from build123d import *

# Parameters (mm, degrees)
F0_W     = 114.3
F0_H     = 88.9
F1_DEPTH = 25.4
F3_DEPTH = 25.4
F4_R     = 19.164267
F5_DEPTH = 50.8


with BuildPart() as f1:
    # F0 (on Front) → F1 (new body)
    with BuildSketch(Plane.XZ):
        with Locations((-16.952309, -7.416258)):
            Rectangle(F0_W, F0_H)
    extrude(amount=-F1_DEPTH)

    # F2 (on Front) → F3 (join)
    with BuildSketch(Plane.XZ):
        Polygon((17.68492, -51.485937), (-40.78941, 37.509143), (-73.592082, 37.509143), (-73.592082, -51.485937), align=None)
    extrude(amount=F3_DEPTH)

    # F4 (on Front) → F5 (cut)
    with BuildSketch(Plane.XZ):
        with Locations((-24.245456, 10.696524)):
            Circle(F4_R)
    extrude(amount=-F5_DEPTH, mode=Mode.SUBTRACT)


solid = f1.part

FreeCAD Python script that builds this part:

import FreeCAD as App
import Part
import Sketcher

V = App.Vector
Q = App.Units.Quantity

doc = App.newDocument("Part")
body = doc.addObject("PartDesign::Body", "Body")

sketch1 = body.newObject("Sketcher::SketchObject", "Sketch")
sketch1.AttachmentSupport = (doc.getObject("XZ_Plane"), [""])
sketch1.MapMode = "FlatFace"
sketch1.addGeometry([
    Part.LineSegment(V(-74, 37, 0), V(-74, -52, 0)),
    Part.LineSegment(V(-74, -52, 0), V(40, -52, 0)),
    Part.LineSegment(V(40, -52, 0), V(40, 37, 0)),
    Part.LineSegment(V(40, 37, 0), V(-74, 37, 0)),
], False)
sketch1.addConstraint([
    Sketcher.Constraint("Coincident", 0, 2, 1, 1),
    Sketcher.Constraint("Coincident", 1, 2, 2, 1),
    Sketcher.Constraint("Coincident", 2, 2, 3, 1),
    Sketcher.Constraint("Coincident", 3, 2, 0, 1),
    Sketcher.Constraint("Vertical", 0),
    Sketcher.Constraint("Horizontal", 1),
    Sketcher.Constraint("Vertical", 2),
    Sketcher.Constraint("Horizontal", 3),
    Sketcher.Constraint("DistanceX", 1, 1, 1, 2, Q("4.5 in")),
    Sketcher.Constraint("DistanceY", 0, 2, 0, 1, Q("3.5 in")),
    Sketcher.Constraint("DistanceX", 0, 2, -1, 1, Q("74.102309 mm")),
    Sketcher.Constraint("DistanceY", 0, 2, -1, 1, Q("51.866258 mm")),
])
pad1 = body.newObject("PartDesign::Pad", "Pad")
pad1.Profile = sketch1
pad1.Length = Q("1 in")
pad1.Reversed = True

sketch2 = body.newObject("Sketcher::SketchObject", "Sketch001")
sketch2.AttachmentSupport = (doc.getObject("XZ_Plane"), [""])
sketch2.MapMode = "FlatFace"
sketch2.addGeometry([
    Part.LineSegment(V(18, -51, 0), V(-41, 38, 0)),
    Part.LineSegment(V(-41, 38, 0), V(-74, 38, 0)),
    Part.LineSegment(V(-74, 38, 0), V(-74, -51, 0)),
    Part.LineSegment(V(-74, -51, 0), V(18, -51, 0)),
], False)
sketch2.addConstraint([
    Sketcher.Constraint("Coincident", 0, 2, 1, 1),
    Sketcher.Constraint("Coincident", 1, 2, 2, 1),
    Sketcher.Constraint("Coincident", 2, 2, 3, 1),
    Sketcher.Constraint("Coincident", 3, 2, 0, 1),
    Sketcher.Constraint("Horizontal", 1),
    Sketcher.Constraint("Vertical", 2),
    Sketcher.Constraint("Horizontal", 3),
    Sketcher.Constraint("DistanceY", 2, 2, 2, 1, Q("88.99508 mm")),
    Sketcher.Constraint("DistanceX", 1, 2, 1, 1, Q("32.802672 mm")),
    Sketcher.Constraint("DistanceX", 3, 1, 3, 2, Q("91.277002 mm")),
    Sketcher.Constraint("DistanceX", 0, 2, -1, 1, Q("40.78941 mm")),
    Sketcher.Constraint("DistanceY", -1, 1, 0, 2, Q("37.509143 mm")),
])
pad2 = body.newObject("PartDesign::Pad", "Pad001")
pad2.Profile = sketch2
pad2.Length = Q("1 in")

sketch3 = body.newObject("Sketcher::SketchObject", "Sketch002")
sketch3.AttachmentSupport = (doc.getObject("XZ_Plane"), [""])
sketch3.MapMode = "FlatFace"
sketch3.addGeometry(Part.Circle(V(-24, 11, 0), V(0, 0, 1), 19), False)
sketch3.addConstraint([
    Sketcher.Constraint("Diameter", 0, Q("38.328534 mm")),
    Sketcher.Constraint("DistanceX", 0, 3, -1, 1, Q("24.245456 mm")),
    Sketcher.Constraint("DistanceY", -1, 1, 0, 3, Q("10.696524 mm")),
])
pocket1 = body.newObject("PartDesign::Pocket", "Pocket")
pocket1.Profile = sketch3
pocket1.Length = Q("2 in")

doc.recompute()
